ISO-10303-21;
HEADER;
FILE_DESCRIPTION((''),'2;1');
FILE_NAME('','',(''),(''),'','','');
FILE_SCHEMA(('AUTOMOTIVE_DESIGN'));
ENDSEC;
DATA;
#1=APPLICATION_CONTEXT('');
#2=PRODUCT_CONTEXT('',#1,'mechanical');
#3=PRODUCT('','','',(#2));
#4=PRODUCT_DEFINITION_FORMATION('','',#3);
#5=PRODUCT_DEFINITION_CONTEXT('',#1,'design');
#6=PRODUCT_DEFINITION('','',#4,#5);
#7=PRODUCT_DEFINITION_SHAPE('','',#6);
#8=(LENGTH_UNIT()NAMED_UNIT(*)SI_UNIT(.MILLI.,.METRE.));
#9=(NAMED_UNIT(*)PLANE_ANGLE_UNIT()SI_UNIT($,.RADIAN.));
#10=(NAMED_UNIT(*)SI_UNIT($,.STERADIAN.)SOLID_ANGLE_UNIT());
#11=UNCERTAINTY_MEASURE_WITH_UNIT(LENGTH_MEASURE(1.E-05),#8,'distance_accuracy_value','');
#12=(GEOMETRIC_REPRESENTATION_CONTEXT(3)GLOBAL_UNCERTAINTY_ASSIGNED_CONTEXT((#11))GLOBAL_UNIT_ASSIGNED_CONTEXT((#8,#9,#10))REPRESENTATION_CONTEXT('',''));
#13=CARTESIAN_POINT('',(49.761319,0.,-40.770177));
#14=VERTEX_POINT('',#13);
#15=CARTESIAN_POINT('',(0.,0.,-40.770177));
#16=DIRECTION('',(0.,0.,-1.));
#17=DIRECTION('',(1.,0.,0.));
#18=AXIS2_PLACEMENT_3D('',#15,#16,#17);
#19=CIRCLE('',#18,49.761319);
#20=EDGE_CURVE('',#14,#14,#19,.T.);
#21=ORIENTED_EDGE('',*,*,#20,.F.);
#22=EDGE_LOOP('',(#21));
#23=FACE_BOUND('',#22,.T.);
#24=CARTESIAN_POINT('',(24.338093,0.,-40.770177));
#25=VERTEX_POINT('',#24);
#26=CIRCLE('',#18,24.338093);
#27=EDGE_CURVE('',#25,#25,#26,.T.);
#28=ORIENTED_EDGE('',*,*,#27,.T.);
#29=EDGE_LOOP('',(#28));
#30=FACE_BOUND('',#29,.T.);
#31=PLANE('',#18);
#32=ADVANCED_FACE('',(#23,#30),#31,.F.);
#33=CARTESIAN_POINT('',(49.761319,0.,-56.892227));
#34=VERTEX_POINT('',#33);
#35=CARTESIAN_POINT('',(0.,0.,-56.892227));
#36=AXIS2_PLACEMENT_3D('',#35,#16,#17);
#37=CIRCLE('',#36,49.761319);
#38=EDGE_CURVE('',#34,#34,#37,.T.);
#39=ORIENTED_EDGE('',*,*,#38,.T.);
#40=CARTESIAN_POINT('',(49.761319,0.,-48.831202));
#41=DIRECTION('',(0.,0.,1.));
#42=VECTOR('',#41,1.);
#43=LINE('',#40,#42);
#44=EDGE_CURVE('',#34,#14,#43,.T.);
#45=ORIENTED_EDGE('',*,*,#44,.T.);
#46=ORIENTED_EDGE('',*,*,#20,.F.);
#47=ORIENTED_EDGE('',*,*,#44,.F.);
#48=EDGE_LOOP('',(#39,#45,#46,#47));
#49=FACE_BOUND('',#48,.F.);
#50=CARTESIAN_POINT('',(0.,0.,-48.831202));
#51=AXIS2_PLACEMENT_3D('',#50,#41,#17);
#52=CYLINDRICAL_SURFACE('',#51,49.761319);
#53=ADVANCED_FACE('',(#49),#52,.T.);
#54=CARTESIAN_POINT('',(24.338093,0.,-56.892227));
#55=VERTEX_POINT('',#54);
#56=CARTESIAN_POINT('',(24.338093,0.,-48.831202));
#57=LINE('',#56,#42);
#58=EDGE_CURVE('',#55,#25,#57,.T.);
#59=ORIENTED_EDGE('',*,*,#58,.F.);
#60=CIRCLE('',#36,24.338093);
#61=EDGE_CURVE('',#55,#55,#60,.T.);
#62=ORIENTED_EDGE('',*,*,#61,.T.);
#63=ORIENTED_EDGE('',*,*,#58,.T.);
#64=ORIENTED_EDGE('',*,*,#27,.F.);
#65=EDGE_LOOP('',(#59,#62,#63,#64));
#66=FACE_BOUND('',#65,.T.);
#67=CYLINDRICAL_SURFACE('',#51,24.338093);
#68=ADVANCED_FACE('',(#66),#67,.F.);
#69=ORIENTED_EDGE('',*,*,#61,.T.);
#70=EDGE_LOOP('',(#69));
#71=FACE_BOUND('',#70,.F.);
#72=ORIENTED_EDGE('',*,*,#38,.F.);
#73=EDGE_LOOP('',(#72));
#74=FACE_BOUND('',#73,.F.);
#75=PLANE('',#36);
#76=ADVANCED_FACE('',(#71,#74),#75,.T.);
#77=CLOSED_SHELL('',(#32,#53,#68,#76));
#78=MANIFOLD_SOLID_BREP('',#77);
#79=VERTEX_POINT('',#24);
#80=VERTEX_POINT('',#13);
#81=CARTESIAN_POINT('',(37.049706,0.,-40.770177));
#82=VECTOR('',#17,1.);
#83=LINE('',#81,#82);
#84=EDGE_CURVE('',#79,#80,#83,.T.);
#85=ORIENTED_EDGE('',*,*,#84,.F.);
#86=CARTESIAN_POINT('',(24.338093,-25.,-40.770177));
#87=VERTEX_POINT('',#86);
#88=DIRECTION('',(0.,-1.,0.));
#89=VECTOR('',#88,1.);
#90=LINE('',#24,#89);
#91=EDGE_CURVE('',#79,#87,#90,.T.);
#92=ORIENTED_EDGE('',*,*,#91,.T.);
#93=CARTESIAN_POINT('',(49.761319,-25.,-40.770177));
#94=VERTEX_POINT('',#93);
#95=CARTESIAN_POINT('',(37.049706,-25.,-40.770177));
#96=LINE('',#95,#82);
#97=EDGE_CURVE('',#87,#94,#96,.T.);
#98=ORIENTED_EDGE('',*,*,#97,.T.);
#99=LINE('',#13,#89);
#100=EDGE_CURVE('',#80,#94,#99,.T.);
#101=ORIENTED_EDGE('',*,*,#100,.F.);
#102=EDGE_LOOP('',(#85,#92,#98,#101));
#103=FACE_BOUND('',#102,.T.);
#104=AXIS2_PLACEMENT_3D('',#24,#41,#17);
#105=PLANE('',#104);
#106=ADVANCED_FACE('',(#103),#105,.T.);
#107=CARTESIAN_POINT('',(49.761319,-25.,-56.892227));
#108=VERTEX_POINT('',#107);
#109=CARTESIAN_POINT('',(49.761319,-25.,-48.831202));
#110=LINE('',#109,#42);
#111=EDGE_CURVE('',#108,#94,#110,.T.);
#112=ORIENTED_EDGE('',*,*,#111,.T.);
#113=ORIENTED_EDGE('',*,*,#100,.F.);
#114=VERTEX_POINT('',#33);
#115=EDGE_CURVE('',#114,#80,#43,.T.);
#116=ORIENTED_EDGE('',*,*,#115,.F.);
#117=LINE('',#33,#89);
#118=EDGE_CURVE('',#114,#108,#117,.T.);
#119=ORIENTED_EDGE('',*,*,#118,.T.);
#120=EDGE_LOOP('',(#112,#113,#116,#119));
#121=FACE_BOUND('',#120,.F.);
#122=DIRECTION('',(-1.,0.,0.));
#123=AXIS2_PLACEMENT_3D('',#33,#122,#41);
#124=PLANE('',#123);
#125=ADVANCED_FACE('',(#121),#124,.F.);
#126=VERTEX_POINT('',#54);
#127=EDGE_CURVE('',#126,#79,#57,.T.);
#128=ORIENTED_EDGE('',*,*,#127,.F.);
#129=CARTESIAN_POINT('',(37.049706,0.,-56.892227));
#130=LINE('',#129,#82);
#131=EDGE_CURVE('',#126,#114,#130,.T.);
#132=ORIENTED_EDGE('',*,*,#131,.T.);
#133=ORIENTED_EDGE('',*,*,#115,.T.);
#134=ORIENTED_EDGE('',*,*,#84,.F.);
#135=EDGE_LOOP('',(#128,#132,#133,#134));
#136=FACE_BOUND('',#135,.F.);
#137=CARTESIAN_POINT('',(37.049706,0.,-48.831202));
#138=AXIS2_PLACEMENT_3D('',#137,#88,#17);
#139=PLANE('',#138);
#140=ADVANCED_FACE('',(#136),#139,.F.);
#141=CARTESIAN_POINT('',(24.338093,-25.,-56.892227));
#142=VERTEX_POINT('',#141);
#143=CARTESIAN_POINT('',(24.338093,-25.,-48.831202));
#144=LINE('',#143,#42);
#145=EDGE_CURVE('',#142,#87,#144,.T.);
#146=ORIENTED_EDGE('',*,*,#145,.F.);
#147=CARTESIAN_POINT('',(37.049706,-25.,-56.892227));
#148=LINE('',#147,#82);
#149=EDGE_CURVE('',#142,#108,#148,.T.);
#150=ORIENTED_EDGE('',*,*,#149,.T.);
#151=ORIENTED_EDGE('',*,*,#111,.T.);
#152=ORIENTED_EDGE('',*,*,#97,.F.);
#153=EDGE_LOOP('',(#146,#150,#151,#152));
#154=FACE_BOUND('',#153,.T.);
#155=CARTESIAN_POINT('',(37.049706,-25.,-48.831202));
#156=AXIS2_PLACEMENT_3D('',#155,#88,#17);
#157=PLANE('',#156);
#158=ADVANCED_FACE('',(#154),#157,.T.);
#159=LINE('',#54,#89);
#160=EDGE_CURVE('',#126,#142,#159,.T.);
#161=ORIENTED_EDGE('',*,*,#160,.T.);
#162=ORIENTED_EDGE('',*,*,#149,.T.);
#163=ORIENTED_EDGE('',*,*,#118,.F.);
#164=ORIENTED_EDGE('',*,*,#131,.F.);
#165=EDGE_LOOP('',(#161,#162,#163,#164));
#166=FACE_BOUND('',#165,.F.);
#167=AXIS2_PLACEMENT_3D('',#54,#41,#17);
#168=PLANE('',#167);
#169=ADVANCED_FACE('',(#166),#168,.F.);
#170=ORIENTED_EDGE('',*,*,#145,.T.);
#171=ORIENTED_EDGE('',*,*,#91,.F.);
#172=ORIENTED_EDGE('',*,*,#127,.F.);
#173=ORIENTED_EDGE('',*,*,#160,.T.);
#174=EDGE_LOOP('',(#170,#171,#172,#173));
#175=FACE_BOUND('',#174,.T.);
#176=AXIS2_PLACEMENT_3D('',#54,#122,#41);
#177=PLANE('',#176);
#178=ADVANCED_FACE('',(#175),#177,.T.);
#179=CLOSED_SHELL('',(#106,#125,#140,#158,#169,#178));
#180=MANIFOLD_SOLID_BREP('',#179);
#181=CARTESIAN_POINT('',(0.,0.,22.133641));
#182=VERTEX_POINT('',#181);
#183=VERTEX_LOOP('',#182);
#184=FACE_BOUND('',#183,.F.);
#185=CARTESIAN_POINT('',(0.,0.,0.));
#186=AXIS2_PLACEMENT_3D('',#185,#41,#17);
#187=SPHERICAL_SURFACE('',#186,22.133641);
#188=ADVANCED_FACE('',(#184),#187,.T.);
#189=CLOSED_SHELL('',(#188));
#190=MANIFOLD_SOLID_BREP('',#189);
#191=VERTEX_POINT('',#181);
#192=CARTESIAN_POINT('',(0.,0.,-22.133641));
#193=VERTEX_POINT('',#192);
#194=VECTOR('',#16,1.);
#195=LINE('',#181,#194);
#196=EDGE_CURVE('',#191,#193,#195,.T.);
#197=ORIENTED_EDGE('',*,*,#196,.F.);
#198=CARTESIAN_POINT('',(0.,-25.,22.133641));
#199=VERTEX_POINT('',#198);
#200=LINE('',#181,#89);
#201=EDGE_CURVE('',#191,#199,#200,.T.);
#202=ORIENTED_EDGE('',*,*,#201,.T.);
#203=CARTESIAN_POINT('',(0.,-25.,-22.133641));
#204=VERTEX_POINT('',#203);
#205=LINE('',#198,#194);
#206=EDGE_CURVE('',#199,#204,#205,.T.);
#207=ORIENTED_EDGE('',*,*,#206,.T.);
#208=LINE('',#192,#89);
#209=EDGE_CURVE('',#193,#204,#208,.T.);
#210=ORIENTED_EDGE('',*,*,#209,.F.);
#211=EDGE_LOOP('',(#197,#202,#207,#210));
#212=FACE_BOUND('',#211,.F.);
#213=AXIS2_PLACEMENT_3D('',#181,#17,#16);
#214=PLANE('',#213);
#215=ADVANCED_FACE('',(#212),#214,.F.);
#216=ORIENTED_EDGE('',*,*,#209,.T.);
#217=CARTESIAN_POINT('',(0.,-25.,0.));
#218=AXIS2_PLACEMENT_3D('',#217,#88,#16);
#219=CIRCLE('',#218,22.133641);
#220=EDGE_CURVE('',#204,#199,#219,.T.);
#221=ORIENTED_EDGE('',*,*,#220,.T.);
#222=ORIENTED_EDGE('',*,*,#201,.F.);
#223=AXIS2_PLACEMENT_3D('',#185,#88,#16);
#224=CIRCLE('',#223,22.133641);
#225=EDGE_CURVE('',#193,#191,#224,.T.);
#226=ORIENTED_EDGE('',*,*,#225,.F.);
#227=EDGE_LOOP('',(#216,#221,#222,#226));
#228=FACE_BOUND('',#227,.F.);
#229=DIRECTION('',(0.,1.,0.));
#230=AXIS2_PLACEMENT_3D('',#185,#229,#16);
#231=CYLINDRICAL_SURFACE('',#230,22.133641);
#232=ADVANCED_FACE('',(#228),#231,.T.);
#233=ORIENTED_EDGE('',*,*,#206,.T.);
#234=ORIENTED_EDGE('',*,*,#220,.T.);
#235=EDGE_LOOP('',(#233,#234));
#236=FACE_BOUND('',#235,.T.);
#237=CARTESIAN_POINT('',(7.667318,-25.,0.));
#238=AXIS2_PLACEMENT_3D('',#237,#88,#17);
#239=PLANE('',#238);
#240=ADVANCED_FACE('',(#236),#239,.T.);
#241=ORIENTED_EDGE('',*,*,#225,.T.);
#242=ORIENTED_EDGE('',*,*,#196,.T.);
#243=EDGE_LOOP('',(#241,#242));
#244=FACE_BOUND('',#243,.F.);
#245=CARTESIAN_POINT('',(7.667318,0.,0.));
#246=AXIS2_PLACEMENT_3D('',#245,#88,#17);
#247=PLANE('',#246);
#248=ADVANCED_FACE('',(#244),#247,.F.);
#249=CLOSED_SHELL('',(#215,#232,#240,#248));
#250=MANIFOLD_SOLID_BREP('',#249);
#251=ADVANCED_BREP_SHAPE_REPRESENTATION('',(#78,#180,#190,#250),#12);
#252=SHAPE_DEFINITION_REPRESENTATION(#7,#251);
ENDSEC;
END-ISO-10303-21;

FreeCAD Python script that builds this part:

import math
import FreeCAD as App
import Part
import Sketcher
Q = App.Units.Quantity

doc = App.newDocument("Part")
body = doc.addObject("PartDesign::Body", "Body")
body.AllowCompound = True

# Sketch on XZ plane
sketch1 = doc.addObject("Sketcher::SketchObject", "Sketch")
body.addObject(sketch1)
sketch1.AttachmentSupport = (doc.XZ_Plane, [""])
sketch1.MapMode = "FlatFace"
sketch1.addGeometry([
    Part.LineSegment(App.Vector(0, 22, 0), App.Vector(0, -22, 0)),  # 0
    Part.ArcOfCircle(Part.Circle(App.Vector(0, 0, 0), App.Vector(0, 0, 1), 22), math.radians(-90), math.radians(90)),  # 1
    Part.LineSegment(App.Vector(24, -41, 0), App.Vector(24, -57, 0)),  # 2
    Part.LineSegment(App.Vector(24, -57, 0), App.Vector(50, -57, 0)),  # 3
    Part.LineSegment(App.Vector(50, -57, 0), App.Vector(50, -41, 0)),  # 4
    Part.LineSegment(App.Vector(50, -41, 0), App.Vector(24, -41, 0)),  # 5
], False)
sketch1.addConstraint([
    Sketcher.Constraint("Coincident", 0, 1, 1, 2),
    Sketcher.Constraint("Coincident", 1, 1, 0, 2),
    Sketcher.Constraint("Coincident", 2, 2, 3, 1),
    Sketcher.Constraint("Coincident", 3, 2, 4, 1),
    Sketcher.Constraint("Coincident", 4, 2, 5, 1),
    Sketcher.Constraint("Coincident", 5, 2, 2, 1),
    Sketcher.Constraint("Vertical", 0),
    Sketcher.Constraint("Vertical", 2),
    Sketcher.Constraint("Horizontal", 3),
    Sketcher.Constraint("Vertical", 4),
    Sketcher.Constraint("Horizontal", 5),
    Sketcher.Constraint("Coincident", 1, 3, -1, 1),
    Sketcher.Constraint("PointOnObject", 0, 1, -2),
    Sketcher.Constraint("Radius", 1, Q("22.133641 mm")),
    Sketcher.Constraint("DistanceY", 2, 2, 2, 1, Q("16.12205 mm")),
    Sketcher.Constraint("DistanceX", 3, 1, 3, 2, Q("25.423225 mm")),
    Sketcher.Constraint("DistanceX", -1, 1, 3, 2, Q("49.761319 mm")),
    Sketcher.Constraint("DistanceY", 2, 2, 0, 1, Q("79.025868 mm")),
])
revolution = doc.addObject("PartDesign::Revolution", "Revolution")
body.addObject(revolution)
revolution.Profile = sketch1
revolution.ReferenceAxis = (sketch1, ["V_Axis"])
revolution.Angle = 360
body2 = doc.addObject("PartDesign::Body", "Body001")
body2.AllowCompound = True

# Sketch on XZ plane
sketch2 = doc.addObject("Sketcher::SketchObject", "Sketch001")
body2.addObject(sketch2)
sketch2.AttachmentSupport = (doc.getObject("XZ_Plane001"), [""])
sketch2.MapMode = "FlatFace"
sketch2.addGeometry([
    Part.LineSegment(App.Vector(0, 22, 0), App.Vector(0, -22, 0)),  # 0
    Part.ArcOfCircle(Part.Circle(App.Vector(0, 0, 0), App.Vector(0, 0, 1), 22), math.radians(-90), math.radians(90)),  # 1
    Part.LineSegment(App.Vector(24, -41, 0), App.Vector(24, -57, 0)),  # 2
    Part.LineSegment(App.Vector(24, -57, 0), App.Vector(50, -57, 0)),  # 3
    Part.LineSegment(App.Vector(50, -57, 0), App.Vector(50, -41, 0)),  # 4
    Part.LineSegment(App.Vector(50, -41, 0), App.Vector(24, -41, 0)),  # 5
], False)
sketch2.addConstraint([
    Sketcher.Constraint("Coincident", 0, 1, 1, 2),
    Sketcher.Constraint("Coincident", 1, 1, 0, 2),
    Sketcher.Constraint("Coincident", 2, 2, 3, 1),
    Sketcher.Constraint("Coincident", 3, 2, 4, 1),
    Sketcher.Constraint("Coincident", 4, 2, 5, 1),
    Sketcher.Constraint("Coincident", 5, 2, 2, 1),
    Sketcher.Constraint("Vertical", 0),
    Sketcher.Constraint("Vertical", 2),
    Sketcher.Constraint("Horizontal", 3),
    Sketcher.Constraint("Vertical", 4),
    Sketcher.Constraint("Horizontal", 5),
    Sketcher.Constraint("Coincident", 1, 3, -1, 1),
    Sketcher.Constraint("PointOnObject", 0, 1, -2),
    Sketcher.Constraint("Radius", 1, Q("22.133641 mm")),
    Sketcher.Constraint("DistanceY", 2, 2, 2, 1, Q("16.12205 mm")),
    Sketcher.Constraint("DistanceX", 3, 1, 3, 2, Q("25.423225 mm")),
    Sketcher.Constraint("DistanceX", -1, 1, 3, 2, Q("49.761319 mm")),
    Sketcher.Constraint("DistanceY", 2, 2, 0, 1, Q("79.025868 mm")),
])
pad1 = doc.addObject("PartDesign::Pad", "Pad")
body2.addObject(pad1)
pad1.Profile = sketch2
pad1.Length = 25

doc.recompute()
